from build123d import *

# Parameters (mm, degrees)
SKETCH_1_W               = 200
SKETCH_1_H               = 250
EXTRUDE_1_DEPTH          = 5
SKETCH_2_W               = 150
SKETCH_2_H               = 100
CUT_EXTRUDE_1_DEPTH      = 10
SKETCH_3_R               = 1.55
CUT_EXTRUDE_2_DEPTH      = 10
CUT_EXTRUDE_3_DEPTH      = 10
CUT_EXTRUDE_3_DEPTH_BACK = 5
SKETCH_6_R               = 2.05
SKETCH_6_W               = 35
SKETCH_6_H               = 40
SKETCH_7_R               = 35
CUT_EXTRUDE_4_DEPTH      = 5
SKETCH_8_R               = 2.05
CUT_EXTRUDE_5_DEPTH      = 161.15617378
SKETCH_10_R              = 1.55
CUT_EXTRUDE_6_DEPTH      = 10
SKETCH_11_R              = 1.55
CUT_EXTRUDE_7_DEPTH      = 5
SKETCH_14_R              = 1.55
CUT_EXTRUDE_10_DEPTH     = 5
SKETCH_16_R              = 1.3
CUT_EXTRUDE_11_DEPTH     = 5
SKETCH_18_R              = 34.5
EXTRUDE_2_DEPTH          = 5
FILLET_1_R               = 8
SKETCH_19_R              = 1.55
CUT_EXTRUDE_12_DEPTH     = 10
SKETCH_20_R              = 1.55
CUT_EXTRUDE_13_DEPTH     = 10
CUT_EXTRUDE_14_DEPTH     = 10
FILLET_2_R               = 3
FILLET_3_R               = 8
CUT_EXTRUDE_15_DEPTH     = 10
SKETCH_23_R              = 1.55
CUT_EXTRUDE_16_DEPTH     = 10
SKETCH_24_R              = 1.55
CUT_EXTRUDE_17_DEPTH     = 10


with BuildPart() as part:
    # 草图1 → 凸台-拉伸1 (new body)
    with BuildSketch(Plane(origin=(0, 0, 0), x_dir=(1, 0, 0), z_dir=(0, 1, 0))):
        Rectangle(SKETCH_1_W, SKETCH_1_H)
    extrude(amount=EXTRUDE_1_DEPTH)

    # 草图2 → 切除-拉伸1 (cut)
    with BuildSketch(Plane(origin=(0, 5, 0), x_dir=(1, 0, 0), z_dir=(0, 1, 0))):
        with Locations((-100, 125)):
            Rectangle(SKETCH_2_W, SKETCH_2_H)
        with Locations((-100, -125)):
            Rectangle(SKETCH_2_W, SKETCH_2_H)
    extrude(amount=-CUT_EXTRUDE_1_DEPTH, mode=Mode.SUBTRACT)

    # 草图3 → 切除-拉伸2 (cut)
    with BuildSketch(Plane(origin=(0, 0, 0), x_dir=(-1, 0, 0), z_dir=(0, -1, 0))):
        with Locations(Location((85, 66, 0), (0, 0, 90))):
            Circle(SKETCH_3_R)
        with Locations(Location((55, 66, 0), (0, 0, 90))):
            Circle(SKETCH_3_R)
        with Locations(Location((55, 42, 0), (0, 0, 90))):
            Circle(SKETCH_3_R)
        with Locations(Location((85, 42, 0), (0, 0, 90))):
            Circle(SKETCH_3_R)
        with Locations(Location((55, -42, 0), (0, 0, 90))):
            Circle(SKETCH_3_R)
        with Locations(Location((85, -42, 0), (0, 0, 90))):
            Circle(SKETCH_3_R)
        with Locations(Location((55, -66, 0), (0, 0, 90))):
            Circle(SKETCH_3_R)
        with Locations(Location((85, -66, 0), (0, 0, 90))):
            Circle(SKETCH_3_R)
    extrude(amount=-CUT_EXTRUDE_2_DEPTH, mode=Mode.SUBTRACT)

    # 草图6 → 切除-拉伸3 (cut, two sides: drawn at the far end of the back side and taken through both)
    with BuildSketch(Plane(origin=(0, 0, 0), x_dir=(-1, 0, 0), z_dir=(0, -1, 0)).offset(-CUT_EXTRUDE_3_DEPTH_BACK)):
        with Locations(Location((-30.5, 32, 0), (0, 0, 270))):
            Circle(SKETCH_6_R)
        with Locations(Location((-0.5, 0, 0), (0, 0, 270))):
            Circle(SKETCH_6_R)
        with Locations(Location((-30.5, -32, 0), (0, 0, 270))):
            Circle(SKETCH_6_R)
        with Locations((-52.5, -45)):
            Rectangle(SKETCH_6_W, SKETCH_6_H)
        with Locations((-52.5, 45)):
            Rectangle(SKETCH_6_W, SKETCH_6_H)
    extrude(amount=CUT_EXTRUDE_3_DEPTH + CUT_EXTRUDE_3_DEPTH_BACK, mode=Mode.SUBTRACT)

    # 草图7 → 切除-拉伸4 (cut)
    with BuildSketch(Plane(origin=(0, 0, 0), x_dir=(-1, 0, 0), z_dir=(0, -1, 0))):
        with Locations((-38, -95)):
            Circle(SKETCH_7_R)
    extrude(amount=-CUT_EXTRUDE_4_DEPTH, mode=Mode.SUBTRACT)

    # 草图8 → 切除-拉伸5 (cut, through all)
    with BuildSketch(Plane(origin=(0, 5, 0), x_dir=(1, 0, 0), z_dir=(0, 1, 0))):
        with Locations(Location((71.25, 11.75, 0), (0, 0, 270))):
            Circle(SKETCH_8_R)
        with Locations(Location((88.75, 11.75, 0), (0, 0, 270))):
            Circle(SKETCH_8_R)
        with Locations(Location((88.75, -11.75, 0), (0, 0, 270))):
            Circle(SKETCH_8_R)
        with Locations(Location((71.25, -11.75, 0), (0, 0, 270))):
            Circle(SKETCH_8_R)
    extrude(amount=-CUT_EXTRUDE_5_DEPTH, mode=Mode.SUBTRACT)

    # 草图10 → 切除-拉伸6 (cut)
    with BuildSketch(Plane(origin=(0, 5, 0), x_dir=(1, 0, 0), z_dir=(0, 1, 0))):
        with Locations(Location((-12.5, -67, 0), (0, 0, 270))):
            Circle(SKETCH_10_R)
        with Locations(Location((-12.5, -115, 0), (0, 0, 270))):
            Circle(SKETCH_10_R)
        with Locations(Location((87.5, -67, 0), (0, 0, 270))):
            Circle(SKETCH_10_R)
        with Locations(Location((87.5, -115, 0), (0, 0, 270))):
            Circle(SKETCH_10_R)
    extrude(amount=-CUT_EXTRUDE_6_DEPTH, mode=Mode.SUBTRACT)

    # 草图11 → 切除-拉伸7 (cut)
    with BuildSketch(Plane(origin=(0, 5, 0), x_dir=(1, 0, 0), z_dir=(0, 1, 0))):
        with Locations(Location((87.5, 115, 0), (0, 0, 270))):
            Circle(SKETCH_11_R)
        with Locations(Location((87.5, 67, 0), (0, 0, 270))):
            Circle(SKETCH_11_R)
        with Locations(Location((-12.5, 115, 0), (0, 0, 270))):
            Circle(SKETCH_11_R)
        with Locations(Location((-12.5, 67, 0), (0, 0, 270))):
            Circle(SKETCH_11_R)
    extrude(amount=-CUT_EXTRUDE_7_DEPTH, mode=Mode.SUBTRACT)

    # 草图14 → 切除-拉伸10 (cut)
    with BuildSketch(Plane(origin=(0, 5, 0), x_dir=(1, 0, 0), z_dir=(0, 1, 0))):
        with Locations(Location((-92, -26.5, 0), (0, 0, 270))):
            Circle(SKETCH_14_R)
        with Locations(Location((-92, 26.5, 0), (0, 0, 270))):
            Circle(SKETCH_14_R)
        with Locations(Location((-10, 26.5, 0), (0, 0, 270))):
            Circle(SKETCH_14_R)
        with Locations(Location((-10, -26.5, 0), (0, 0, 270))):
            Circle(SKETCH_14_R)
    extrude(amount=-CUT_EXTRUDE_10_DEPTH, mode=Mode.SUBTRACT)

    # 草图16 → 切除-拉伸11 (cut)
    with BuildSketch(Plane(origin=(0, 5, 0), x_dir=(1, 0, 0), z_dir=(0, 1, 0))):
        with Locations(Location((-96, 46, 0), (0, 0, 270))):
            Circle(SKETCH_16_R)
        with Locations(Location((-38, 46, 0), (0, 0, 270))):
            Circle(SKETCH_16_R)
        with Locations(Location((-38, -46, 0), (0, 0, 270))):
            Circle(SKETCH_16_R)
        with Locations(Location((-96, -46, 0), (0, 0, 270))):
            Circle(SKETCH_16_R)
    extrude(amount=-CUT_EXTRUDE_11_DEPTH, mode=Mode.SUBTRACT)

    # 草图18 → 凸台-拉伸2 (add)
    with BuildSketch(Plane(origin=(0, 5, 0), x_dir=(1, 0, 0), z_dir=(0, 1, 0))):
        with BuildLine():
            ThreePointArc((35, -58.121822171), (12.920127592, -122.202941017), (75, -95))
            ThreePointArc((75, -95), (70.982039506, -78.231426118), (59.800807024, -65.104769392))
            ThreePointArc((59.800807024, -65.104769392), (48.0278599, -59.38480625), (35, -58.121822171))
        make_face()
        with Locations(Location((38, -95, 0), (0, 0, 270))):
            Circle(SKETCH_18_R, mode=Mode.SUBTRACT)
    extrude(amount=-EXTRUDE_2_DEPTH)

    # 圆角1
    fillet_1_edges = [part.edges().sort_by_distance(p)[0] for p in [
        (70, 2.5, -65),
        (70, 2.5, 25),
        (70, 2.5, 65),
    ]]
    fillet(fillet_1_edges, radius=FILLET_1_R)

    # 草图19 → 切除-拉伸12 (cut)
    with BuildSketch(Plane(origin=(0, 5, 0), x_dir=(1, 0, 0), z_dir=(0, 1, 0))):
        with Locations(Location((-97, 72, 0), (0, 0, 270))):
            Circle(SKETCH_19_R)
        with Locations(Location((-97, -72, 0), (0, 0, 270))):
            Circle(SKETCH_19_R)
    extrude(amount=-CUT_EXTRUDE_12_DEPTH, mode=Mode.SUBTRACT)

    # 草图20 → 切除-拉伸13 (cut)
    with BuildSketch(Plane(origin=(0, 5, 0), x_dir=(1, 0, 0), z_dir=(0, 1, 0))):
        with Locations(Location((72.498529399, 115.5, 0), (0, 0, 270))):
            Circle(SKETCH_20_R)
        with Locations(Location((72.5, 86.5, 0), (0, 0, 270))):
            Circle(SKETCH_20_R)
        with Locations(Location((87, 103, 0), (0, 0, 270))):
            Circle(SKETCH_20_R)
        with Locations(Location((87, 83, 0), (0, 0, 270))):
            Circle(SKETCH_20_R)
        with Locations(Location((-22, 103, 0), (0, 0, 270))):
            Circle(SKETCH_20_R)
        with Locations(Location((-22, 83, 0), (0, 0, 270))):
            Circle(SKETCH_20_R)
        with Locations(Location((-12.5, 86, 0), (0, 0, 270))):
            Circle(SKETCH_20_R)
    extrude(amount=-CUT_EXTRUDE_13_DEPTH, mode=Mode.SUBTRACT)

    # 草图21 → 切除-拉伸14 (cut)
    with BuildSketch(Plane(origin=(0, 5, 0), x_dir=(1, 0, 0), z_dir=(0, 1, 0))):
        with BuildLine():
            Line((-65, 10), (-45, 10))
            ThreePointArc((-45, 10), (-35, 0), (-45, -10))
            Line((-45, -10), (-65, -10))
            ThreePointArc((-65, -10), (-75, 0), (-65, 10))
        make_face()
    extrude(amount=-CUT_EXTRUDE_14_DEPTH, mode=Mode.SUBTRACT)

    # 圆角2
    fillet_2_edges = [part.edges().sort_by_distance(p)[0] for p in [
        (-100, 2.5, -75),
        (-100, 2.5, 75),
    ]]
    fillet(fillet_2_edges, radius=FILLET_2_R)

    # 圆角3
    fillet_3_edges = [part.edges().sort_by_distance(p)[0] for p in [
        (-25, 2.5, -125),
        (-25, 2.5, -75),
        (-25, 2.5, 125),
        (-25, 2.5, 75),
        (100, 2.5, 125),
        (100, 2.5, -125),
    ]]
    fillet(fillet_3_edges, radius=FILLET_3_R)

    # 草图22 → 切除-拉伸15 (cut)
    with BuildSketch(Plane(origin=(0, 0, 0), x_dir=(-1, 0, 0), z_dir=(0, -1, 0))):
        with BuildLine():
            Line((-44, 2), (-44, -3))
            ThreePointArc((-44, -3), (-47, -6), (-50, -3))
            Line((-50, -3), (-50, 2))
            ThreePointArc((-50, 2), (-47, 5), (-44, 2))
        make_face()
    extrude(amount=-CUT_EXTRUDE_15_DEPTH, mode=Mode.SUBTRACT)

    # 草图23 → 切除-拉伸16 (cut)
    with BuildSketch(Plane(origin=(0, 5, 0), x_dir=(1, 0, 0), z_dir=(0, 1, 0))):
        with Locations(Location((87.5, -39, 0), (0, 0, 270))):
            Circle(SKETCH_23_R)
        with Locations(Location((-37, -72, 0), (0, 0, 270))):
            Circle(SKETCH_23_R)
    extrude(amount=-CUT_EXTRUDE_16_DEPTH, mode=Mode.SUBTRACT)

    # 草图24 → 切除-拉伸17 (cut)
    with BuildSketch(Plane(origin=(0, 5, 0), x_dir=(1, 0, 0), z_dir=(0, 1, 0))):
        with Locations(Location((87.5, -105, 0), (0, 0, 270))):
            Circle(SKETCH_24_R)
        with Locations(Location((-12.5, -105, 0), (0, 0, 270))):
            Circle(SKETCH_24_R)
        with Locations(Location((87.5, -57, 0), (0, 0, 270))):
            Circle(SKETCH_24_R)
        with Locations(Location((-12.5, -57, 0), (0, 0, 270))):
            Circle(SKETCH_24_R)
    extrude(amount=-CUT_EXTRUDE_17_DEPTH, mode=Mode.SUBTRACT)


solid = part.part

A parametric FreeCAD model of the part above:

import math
import FreeCAD as App
import Part
import Sketcher


def edges_at(feature, points):
    """Names of the edges that pass closest to the given points."""
    edges = feature.Shape.Edges
    near = lambda p: min(range(len(edges)), key=lambda i: edges[i].distToShape(Part.Vertex(*p))[0])
    return sorted({f"Edge{near(p) + 1}" for p in points})

doc = App.newDocument("Part")
params = doc.addObject("Spreadsheet::Sheet", "Params")
for row, (alias, value) in enumerate([
    ("sketch1_width", "200 mm"),
    ("sketch1_height", "250 mm"),
    ("pad1_length", "5 mm"),
    ("sketch2_width", "150 mm"),
    ("sketch2_height", "100 mm"),
    ("pocket1_length", "10 mm"),
    ("sketch3_diameter", "3.1 mm"),
    ("pocket2_length", "10 mm"),
    ("sketch4_diameter", "4.1 mm"),
    ("sketch4_width", "35 mm"),
    ("sketch4_height", "40 mm"),
    ("sketch5_diameter", "70 mm"),
    ("pocket4_length", "5 mm"),
    ("sketch6_diameter", "4.1 mm"),
    ("sketch7_diameter", "3.1 mm"),
    ("pocket6_length", "10 mm"),
    ("sketch8_diameter", "3.1 mm"),
    ("pocket7_length", "5 mm"),
    ("sketch9_diameter", "3.1 mm"),
    ("pocket8_length", "5 mm"),
    ("sketch10_diameter", "2.6 mm"),
    ("pocket9_length", "5 mm"),
    ("sketch11_diameter", "69 mm"),
    ("sketch11_radius", "37 mm"),
    ("pad2_length", "5 mm"),
    ("fillet_radius", "8 mm"),
    ("sketch12_diameter", "3.1 mm"),
    ("pocket10_length", "10 mm"),
    ("sketch13_diameter", "3.1 mm"),
    ("pocket11_length", "10 mm"),
    ("sketch14_radius", "10 mm"),
    ("sketch14_width", "20 mm"),
    ("pocket12_length", "10 mm"),
    ("fillet2_radius", "3 mm"),
    ("fillet3_radius", "8 mm"),
    ("sketch15_radius", "3 mm"),
    ("sketch15_height", "5 mm"),
    ("pocket13_length", "10 mm"),
    ("sketch16_diameter", "3.1 mm"),
    ("pocket14_length", "10 mm"),
    ("sketch17_diameter", "3.1 mm"),
    ("pocket15_length", "10 mm"),
], start=1):
    params.set(f"A{row}", alias)
    params.set(f"B{row}", "=" + value)
    params.setAlias(f"B{row}", alias)

body = doc.addObject("PartDesign::Body", "Body")

sketch1 = body.newObject("Sketcher::SketchObject", "Sketch")
sketch1.AttachmentSupport = (doc.getObject("XZ_Plane"), [""])
sketch1.MapMode = "FlatFace"
sketch1.addGeometry([
    Part.LineSegment(App.Vector(-100, -125, 0), App.Vector(-100, 125, 0)),
    Part.LineSegment(App.Vector(-100, 125, 0), App.Vector(100, 125, 0)),
    Part.LineSegment(App.Vector(100, 125, 0), App.Vector(100, -125, 0)),
    Part.LineSegment(App.Vector(100, -125, 0), App.Vector(-100, -125, 0)),
], False)
sketch1.addConstraint([
    Sketcher.Constraint("Coincident", 0, 2, 1, 1),
    Sketcher.Constraint("Coincident", 1, 2, 2, 1),
    Sketcher.Constraint("Coincident", 2, 2, 3, 1),
    Sketcher.Constraint("Coincident", 3, 2, 0, 1),
    Sketcher.Constraint("Vertical", 0),
    Sketcher.Constraint("Horizontal", 1),
    Sketcher.Constraint("Vertical", 2),
    Sketcher.Constraint("Horizontal", 3),
    Sketcher.Constraint("Symmetric", 0, 2, 2, 2, -1, 1),
    Sketcher.Constraint("DistanceX", 1, 1, 1, 2, 200.0),
    Sketcher.Constraint("DistanceY", 0, 1, 0, 2, 250.0),
])
sketch1.setExpression("Constraints[9]", "Params.sketch1_width")
sketch1.setExpression("Constraints[10]", "Params.sketch1_height")
pad1 = body.newObject("PartDesign::Pad", "Pad")
pad1.Profile = sketch1
pad1.setExpression("Length", "Params.pad1_length")
pad1.Reversed = True

sketch2 = body.newObject("Sketcher::SketchObject", "Sketch001")
sketch2.AttachmentSupport = (doc.getObject("XZ_Plane"), [""])
sketch2.MapMode = "FlatFace"
sketch2.AttachmentOffset = App.Placement(App.Vector(0, 0, -5), App.Rotation())
sketch2.addGeometry([
    Part.LineSegment(App.Vector(-175, -175, 0), App.Vector(-175, -75, 0)),
    Part.LineSegment(App.Vector(-175, -75, 0), App.Vector(-25, -75, 0)),
    Part.LineSegment(App.Vector(-25, -75, 0), App.Vector(-25, -175, 0)),
    Part.LineSegment(App.Vector(-25, -175, 0), App.Vector(-175, -175, 0)),
    Part.LineSegment(App.Vector(-175, 75, 0), App.Vector(-175, 175, 0)),
    Part.LineSegment(App.Vector(-175, 175, 0), App.Vector(-25, 175, 0)),
    Part.LineSegment(App.Vector(-25, 175, 0), App.Vector(-25, 75, 0)),
    Part.LineSegment(App.Vector(-25, 75, 0), App.Vector(-175, 75, 0)),
], False)
sketch2.addConstraint([
    Sketcher.Constraint("Coincident", 0, 2, 1, 1),
    Sketcher.Constraint("Coincident", 1, 2, 2, 1),
    Sketcher.Constraint("Coincident", 2, 2, 3, 1),
    Sketcher.Constraint("Coincident", 3, 2, 0, 1),
    Sketcher.Constraint("Coincident", 4, 2, 5, 1),
    Sketcher.Constraint("Coincident", 5, 2, 6, 1),
    Sketcher.Constraint("Coincident", 6, 2, 7, 1),
    Sketcher.Constraint("Coincident", 7, 2, 4, 1),
    Sketcher.Constraint("Vertical", 0),
    Sketcher.Constraint("Horizontal", 1),
    Sketcher.Constraint("Vertical", 2),
    Sketcher.Constraint("Horizontal", 3),
    Sketcher.Constraint("Vertical", 4),
    Sketcher.Constraint("Horizontal", 5),
    Sketcher.Constraint("Vertical", 6),
    Sketcher.Constraint("Horizontal", 7),
    Sketcher.Constraint("Symmetric", 3, 2, 4, 2, -1),
    Sketcher.Constraint("Symmetric", 1, 2, 6, 2, -1),
    Sketcher.Constraint("DistanceX", 1, 1, 1, 2, 150.0),
    Sketcher.Constraint("DistanceY", 0, 1, 0, 2, 100.0),
    Sketcher.Constraint("DistanceX", 0, 2, -1, 1, 175.0),
    Sketcher.Constraint("DistanceY", 0, 2, -1, 1, 75.0),
])
sketch2.setExpression("Constraints[18]", "Params.sketch2_width")
sketch2.setExpression("Constraints[19]", "Params.sketch2_height")
pocket1 = body.newObject("PartDesign::Pocket", "Pocket")
pocket1.Profile = sketch2
pocket1.setExpression("Length", "Params.pocket1_length")
pocket1.Reversed = True

sketch3 = body.newObject("Sketcher::SketchObject", "Sketch002")
sketch3.AttachmentSupport = (doc.getObject("XZ_Plane"), [""])
sketch3.MapMode = "FlatFace"
sketch3.addGeometry([
    Part.Circle(App.Vector(-85, -66, 0), App.Vector(0, 0, 1), 1.6),
    Part.Circle(App.Vector(-55, -66, 0), App.Vector(0, 0, 1), 1.6),
    Part.Circle(App.Vector(-55, -42, 0), App.Vector(0, 0, 1), 1.6),
    Part.Circle(App.Vector(-85, -42, 0), App.Vector(0, 0, 1), 1.6),
    Part.Circle(App.Vector(-55, 42, 0), App.Vector(0, 0, 1), 1.6),
    Part.Circle(App.Vector(-85, 42, 0), App.Vector(0, 0, 1), 1.6),
    Part.Circle(App.Vector(-55, 66, 0), App.Vector(0, 0, 1), 1.6),
    Part.Circle(App.Vector(-85, 66, 0), App.Vector(0, 0, 1), 1.6),
], False)
sketch3.addConstraint([
    Sketcher.Constraint("Equal", 0, 1),
    Sketcher.Constraint("Equal", 1, 2),
    Sketcher.Constraint("Equal", 2, 3),
    Sketcher.Constraint("Equal", 3, 4),
    Sketcher.Constraint("Equal", 4, 5),
    Sketcher.Constraint("Equal", 5, 6),
    Sketcher.Constraint("Equal", 6, 7),
    Sketcher.Constraint("Symmetric", 2, 3, 4, 3, -1),
    Sketcher.Constraint("Symmetric", 3, 3, 5, 3, -1),
    Sketcher.Constraint("Symmetric", 1, 3, 6, 3, -1),
    Sketcher.Constraint("Symmetric", 0, 3, 7, 3, -1),
    Sketcher.Constraint("Horizontal", 0, 3, 1, 3),
    Sketcher.Constraint("Horizontal", 2, 3, 3, 3),
    Sketcher.Constraint("Vertical", 1, 3, 2, 3),
    Sketcher.Constraint("Vertical", 0, 3, 3, 3),
    Sketcher.Constraint("Diameter", 0, 3.1),
    Sketcher.Constraint("DistanceX", 0, 3, -1, 1, 85.0),
    Sketcher.Constraint("DistanceY", 0, 3, -1, 1, 66.0),
    Sketcher.Constraint("DistanceX", 1, 3, -1, 1, 55.0),
    Sketcher.Constraint("DistanceY", 2, 3, -1, 1, 42.0),
])
sketch3.setExpression("Constraints[15]", "Params.sketch3_diameter")
pocket2 = body.newObject("PartDesign::Pocket", "Pocket001")
pocket2.Profile = sketch3
pocket2.setExpression("Length", "Params.pocket2_length")

sketch4 = body.newObject("Sketcher::SketchObject", "Sketch003")
sketch4.AttachmentSupport = (doc.getObject("XZ_Plane"), [""])
sketch4.MapMode = "FlatFace"
sketch4.addGeometry([
    Part.Circle(App.Vector(30.5, -32, 0), App.Vector(0, 0, 1), 2),
    Part.Circle(App.Vector(0.5, 0, 0), App.Vector(0, 0, 1), 2),
    Part.Circle(App.Vector(30.5, 32, 0), App.Vector(0, 0, 1), 2),
    Part.LineSegment(App.Vector(70, 25, 0), App.Vector(70, 65, 0)),
    Part.LineSegment(App.Vector(70, 65, 0), App.Vector(35, 65, 0)),
    Part.LineSegment(App.Vector(35, 65, 0), App.Vector(35, 25, 0)),
    Part.LineSegment(App.Vector(35, 25, 0), App.Vector(70, 25, 0)),
    Part.LineSegment(App.Vector(70, -65, 0), App.Vector(70, -25, 0)),
    Part.LineSegment(App.Vector(70, -25, 0), App.Vector(35, -25, 0)),
    Part.LineSegment(App.Vector(35, -25, 0), App.Vector(35, -65, 0)),
    Part.LineSegment(App.Vector(35, -65, 0), App.Vector(70, -65, 0)),
], False)
sketch4.addConstraint([
    Sketcher.Constraint("Coincident", 3, 2, 4, 1),
    Sketcher.Constraint("Coincident", 4, 2, 5, 1),
    Sketcher.Constraint("Coincident", 5, 2, 6, 1),
    Sketcher.Constraint("Coincident", 6, 2, 3, 1),
    Sketcher.Constraint("Coincident", 7, 2, 8, 1),
    Sketcher.Constraint("Coincident", 8, 2, 9, 1),
    Sketcher.Constraint("Coincident", 9, 2, 10, 1),
    Sketcher.Constraint("Coincident", 10, 2, 7, 1),
    Sketcher.Constraint("Vertical", 3),
    Sketcher.Constraint("Horizontal", 4),
    Sketcher.Constraint("Vertical", 5),
    Sketcher.Constraint("Horizontal", 6),
    Sketcher.Constraint("Vertical", 7),
    Sketcher.Constraint("Horizontal", 8),
    Sketcher.Constraint("Vertical", 9),
    Sketcher.Constraint("Horizontal", 10),
    Sketcher.Constraint("Equal", 0, 1),
    Sketcher.Constraint("Equal", 1, 2),
    Sketcher.Constraint("Symmetric", 0, 3, 2, 3, -1),
    Sketcher.Constraint("Symmetric", 6, 2, 7, 2, -1),
    Sketcher.Constraint("Symmetric", 4, 2, 9, 2, -1),
    Sketcher.Constraint("PointOnObject", 1, 3, -1),
    Sketcher.Constraint("Diameter", 0, 4.1),
    Sketcher.Constraint("DistanceX", 4, 2, 4, 1, 35.0),
    Sketcher.Constraint("DistanceY", 3, 1, 3, 2, 40.0),
    Sketcher.Constraint("DistanceY", 0, 3, -1, 1, 32.0),
    Sketcher.Constraint("DistanceX", -1, 1, 3, 2, 70.0),
    Sketcher.Constraint("DistanceY", -1, 1, 3, 2, 65.0),
    Sketcher.Constraint("DistanceX", 1, 3, 0, 3, 30.0),
    Sketcher.Constraint("DistanceX", -1, 1, 0, 3, 30.5),
])
sketch4.setExpression("Constraints[22]", "Params.sketch4_diameter")
sketch4.setExpression("Constraints[23]", "Params.sketch4_width")
sketch4.setExpression("Constraints[24]", "Params.sketch4_height")
pocket3 = body.newObject("PartDesign::Pocket", "Pocket002")
pocket3.Profile = sketch4
pocket3.Type = "ThroughAll"
pocket3.Midplane = True

sketch5 = body.newObject("Sketcher::SketchObject", "Sketch004")
sketch5.AttachmentSupport = (doc.getObject("XZ_Plane"), [""])
sketch5.MapMode = "FlatFace"
sketch5.addGeometry(Part.Circle(App.Vector(38, 95, 0), App.Vector(0, 0, 1), 35), False)
sketch5.addConstraint([
    Sketcher.Constraint("Diameter", 0, 70.0),
    Sketcher.Constraint("DistanceX", -1, 1, 0, 3, 38.0),
    Sketcher.Constraint("DistanceY", -1, 1, 0, 3, 95.0),
])
sketch5.setExpression("Constraints[0]", "Params.sketch5_diameter")
pocket4 = body.newObject("PartDesign::Pocket", "Pocket003")
pocket4.Profile = sketch5
pocket4.setExpression("Length", "Params.pocket4_length")

sketch6 = body.newObject("Sketcher::SketchObject", "Sketch005")
sketch6.AttachmentSupport = (doc.getObject("XZ_Plane"), [""])
sketch6.MapMode = "FlatFace"
sketch6.AttachmentOffset = App.Placement(App.Vector(0, 0, -5), App.Rotation())
sketch6.addGeometry([
    Part.Circle(App.Vector(71.2, -11.8, 0), App.Vector(0, 0, 1), 2),
    Part.Circle(App.Vector(88.8, -11.8, 0), App.Vector(0, 0, 1), 2),
    Part.Circle(App.Vector(88.8, 11.8, 0), App.Vector(0, 0, 1), 2),
    Part.Circle(App.Vector(71.2, 11.8, 0), App.Vector(0, 0, 1), 2),
], False)
sketch6.addConstraint([
    Sketcher.Constraint("Equal", 0, 1),
    Sketcher.Constraint("Equal", 1, 2),
    Sketcher.Constraint("Equal", 2, 3),
    Sketcher.Constraint("Symmetric", 1, 3, 2, 3, -1),
    Sketcher.Constraint("Symmetric", 0, 3, 3, 3, -1),
    Sketcher.Constraint("Horizontal", 0, 3, 1, 3),
    Sketcher.Constraint("Diameter", 0, 4.1),
    Sketcher.Constraint("DistanceX", 0, 3, 1, 3, 17.5),
    Sketcher.Constraint("DistanceY", 1, 3, 2, 3, 23.5),
    Sketcher.Constraint("DistanceX", -1, 1, 0, 3, 71.25),
])
sketch6.setExpression("Constraints[6]", "Params.sketch6_diameter")
pocket5 = body.newObject("PartDesign::Pocket", "Pocket004")
pocket5.Profile = sketch6
pocket5.Type = "ThroughAll"
pocket5.Reversed = True

sketch7 = body.newObject("Sketcher::SketchObject", "Sketch006")
sketch7.AttachmentSupport = (doc.getObject("XZ_Plane"), [""])
sketch7.MapMode = "FlatFace"
sketch7.AttachmentOffset = App.Placement(App.Vector(0, 0, -5), App.Rotation())
sketch7.addGeometry([
    Part.Circle(App.Vector(-12.5, 67, 0), App.Vector(0, 0, 1), 1.6),
    Part.Circle(App.Vector(-12.5, 115, 0), App.Vector(0, 0, 1), 1.6),
    Part.Circle(App.Vector(87.5, 67, 0), App.Vector(0, 0, 1), 1.6),
    Part.Circle(App.Vector(87.5, 115, 0), App.Vector(0, 0, 1), 1.6),
], False)
sketch7.addConstraint([
    Sketcher.Constraint("Equal", 0, 1),
    Sketcher.Constraint("Equal", 1, 2),
    Sketcher.Constraint("Equal", 2, 3),
    Sketcher.Constraint("Horizontal", 0, 3, 2, 3),
    Sketcher.Constraint("Horizontal", 1, 3, 3, 3),
    Sketcher.Constraint("Vertical", 0, 3, 1, 3),
    Sketcher.Constraint("Vertical", 2, 3, 3, 3),
    Sketcher.Constraint("Diameter", 0, 3.1),
    Sketcher.Constraint("DistanceY", -1, 1, 0, 3, 67.0),
    Sketcher.Constraint("DistanceY", -1, 1, 1, 3, 115.0),
    Sketcher.Constraint("DistanceX", 0, 3, 2, 3, 100.0),
    Sketcher.Constraint("DistanceX", 0, 3, -1, 1, 12.5),
])
sketch7.setExpression("Constraints[7]", "Params.sketch7_diameter")
pocket6 = body.newObject("PartDesign::Pocket", "Pocket005")
pocket6.Profile = sketch7
pocket6.setExpression("Length", "Params.pocket6_length")
pocket6.Reversed = True

sketch8 = body.newObject("Sketcher::SketchObject", "Sketch007")
sketch8.AttachmentSupport = (doc.getObject("XZ_Plane"), [""])
sketch8.MapMode = "FlatFace"
sketch8.AttachmentOffset = App.Placement(App.Vector(0, 0, -5), App.Rotation())
sketch8.addGeometry([
    Part.Circle(App.Vector(87.5, -115, 0), App.Vector(0, 0, 1), 1.6),
    Part.Circle(App.Vector(87.5, -67, 0), App.Vector(0, 0, 1), 1.6),
    Part.Circle(App.Vector(-12.5, -115, 0), App.Vector(0, 0, 1), 1.6),
    Part.Circle(App.Vector(-12.5, -67, 0), App.Vector(0, 0, 1), 1.6),
], False)
sketch8.addConstraint([
    Sketcher.Constraint("Equal", 0, 1),
    Sketcher.Constraint("Equal", 1, 2),
    Sketcher.Constraint("Equal", 2, 3),
    Sketcher.Constraint("Horizontal", 0, 3, 2, 3),
    Sketcher.Constraint("Horizontal", 1, 3, 3, 3),
    Sketcher.Constraint("Vertical", 0, 3, 1, 3),
    Sketcher.Constraint("Vertical", 2, 3, 3, 3),
    Sketcher.Constraint("Diameter", 0, 3.1),
    Sketcher.Constraint("DistanceY", 0, 3, -1, 1, 115.0),
    Sketcher.Constraint("DistanceY", 1, 3, -1, 1, 67.0),
    Sketcher.Constraint("DistanceX", 2, 3, 0, 3, 100.0),
    Sketcher.Constraint("DistanceX", -1, 1, 0, 3, 87.5),
])
sketch8.setExpression("Constraints[7]", "Params.sketch8_diameter")
pocket7 = body.newObject("PartDesign::Pocket", "Pocket006")
pocket7.Profile = sketch8
pocket7.setExpression("Length", "Params.pocket7_length")
pocket7.Reversed = True

sketch9 = body.newObject("Sketcher::SketchObject", "Sketch008")
sketch9.AttachmentSupport = (doc.getObject("XZ_Plane"), [""])
sketch9.MapMode = "FlatFace"
sketch9.AttachmentOffset = App.Placement(App.Vector(0, 0, -5), App.Rotation())
sketch9.addGeometry([
    Part.Circle(App.Vector(-92, 26.5, 0), App.Vector(0, 0, 1), 1.6),
    Part.Circle(App.Vector(-92, -26.5, 0), App.Vector(0, 0, 1), 1.6),
    Part.Circle(App.Vector(-10, -26.5, 0), App.Vector(0, 0, 1), 1.6),
    Part.Circle(App.Vector(-10, 26.5, 0), App.Vector(0, 0, 1), 1.6),
], False)
sketch9.addConstraint([
    Sketcher.Constraint("Equal", 0, 1),
    Sketcher.Constraint("Equal", 1, 2),
    Sketcher.Constraint("Equal", 2, 3),
    Sketcher.Constraint("Symmetric", 0, 3, 1, 3, -1),
    Sketcher.Constraint("Symmetric", 2, 3, 3, 3, -1),
    Sketcher.Constraint("Horizontal", 1, 3, 2, 3),
    Sketcher.Constraint("Diameter", 0, 3.1),
    Sketcher.Constraint("DistanceX", 0, 3, -1, 1, 92.0),
    Sketcher.Constraint("DistanceX", 2, 3, -1, 1, 10.0),
    Sketcher.Constraint("DistanceY", 1, 3, 0, 3, 53.0),
])
sketch9.setExpression("Constraints[6]", "Params.sketch9_diameter")
pocket8 = body.newObject("PartDesign::Pocket", "Pocket007")
pocket8.Profile = sketch9
pocket8.setExpression("Length", "Params.pocket8_length")
pocket8.Reversed = True

sketch10 = body.newObject("Sketcher::SketchObject", "Sketch009")
sketch10.AttachmentSupport = (doc.getObject("XZ_Plane"), [""])
sketch10.MapMode = "FlatFace"
sketch10.AttachmentOffset = App.Placement(App.Vector(0, 0, -5), App.Rotation())
sketch10.addGeometry([
    Part.Circle(App.Vector(-96, -46, 0), App.Vector(0, 0, 1), 1.3),
    Part.Circle(App.Vector(-38, -46, 0), App.Vector(0, 0, 1), 1.3),
    Part.Circle(App.Vector(-38, 46, 0), App.Vector(0, 0, 1), 1.3),
    Part.Circle(App.Vector(-96, 46, 0), App.Vector(0, 0, 1), 1.3),
], False)
sketch10.addConstraint([
    Sketcher.Constraint("Equal", 0, 1),
    Sketcher.Constraint("Equal", 1, 2),
    Sketcher.Constraint("Equal", 2, 3),
    Sketcher.Constraint("Symmetric", 1, 3, 2, 3, -1),
    Sketcher.Constraint("Symmetric", 0, 3, 3, 3, -1),
    Sketcher.Constraint("Horizontal", 0, 3, 1, 3),
    Sketcher.Constraint("Diameter", 0, 2.6),
    Sketcher.Constraint("DistanceX", 0, 3, -1, 1, 96.0),
    Sketcher.Constraint("DistanceY", 0, 3, -1, 1, 46.0),
    Sketcher.Constraint("DistanceX", 1, 3, -1, 1, 38.0),
])
sketch10.setExpression("Constraints[6]", "Params.sketch10_diameter")
pocket9 = body.newObject("PartDesign::Pocket", "Pocket008")
pocket9.Profile = sketch10
pocket9.setExpression("Length", "Params.pocket9_length")
pocket9.Reversed = True

sketch11 = body.newObject("Sketcher::SketchObject", "Sketch010")
sketch11.AttachmentSupport = (doc.getObject("XZ_Plane"), [""])
sketch11.MapMode = "FlatFace"
sketch11.AttachmentOffset = App.Placement(App.Vector(0, 0, -5), App.Rotation())
sketch11.addGeometry([
    Part.ArcOfCircle(Part.Circle(App.Vector(38, 95, 0), App.Vector(0, 0, 1), 37), math.radians(0), math.radians(265)),
    Part.ArcOfCircle(Part.Circle(App.Vector(38, 95, 0), App.Vector(0, 0, 1), 37), math.radians(-54), math.radians(0)),
    Part.ArcOfCircle(Part.Circle(App.Vector(38, 95, 0), App.Vector(0, 0, 1), 37), math.radians(-95), math.radians(-54)),
    Part.Circle(App.Vector(38, 95, 0), App.Vector(0, 0, 1), 34),
], False)
sketch11.addConstraint([
    Sketcher.Constraint("Tangent", 0, 1, 1, 2),
    Sketcher.Constraint("Tangent", 1, 1, 2, 2),
    Sketcher.Constraint("Tangent", 2, 1, 0, 2),
    Sketcher.Constraint("Coincident", 3, 3, 0, 3),
    Sketcher.Constraint("Horizontal", 3, 3, 0, 1),
    Sketcher.Constraint("Diameter", 3, 69.0),
    Sketcher.Constraint("Radius", 0, 37.0),
    Sketcher.Constraint("DistanceX", -1, 1, 0, 3, 38.0),
    Sketcher.Constraint("DistanceY", -1, 1, 0, 3, 95.0),
    Sketcher.Constraint("DistanceX", -1, 1, 2, 1, 35.0),
    Sketcher.Constraint("DistanceY", -1, 1, 1, 1, 65.104769),
])
sketch11.setExpression("Constraints[5]", "Params.sketch11_diameter")
sketch11.setExpression("Constraints[6]", "Params.sketch11_radius")
pad2 = body.newObject("PartDesign::Pad", "Pad001")
pad2.Profile = sketch11
pad2.setExpression("Length", "Params.pad2_length")
doc.recompute()

fillet = body.newObject("PartDesign::Fillet", "Fillet")
fillet.Base = (pad2, edges_at(pad2, [(70, 2.5, -65), (70, 2.5, 25), (70, 2.5, 65)]))
fillet.setExpression("Radius", "Params.fillet_radius")

sketch12 = body.newObject("Sketcher::SketchObject", "Sketch011")
sketch12.AttachmentSupport = (doc.getObject("XZ_Plane"), [""])
sketch12.MapMode = "FlatFace"
sketch12.AttachmentOffset = App.Placement(App.Vector(0, 0, -5), App.Rotation())
sketch12.addGeometry([
    Part.Circle(App.Vector(-97, -72, 0), App.Vector(0, 0, 1), 1.6),
    Part.Circle(App.Vector(-97, 72, 0), App.Vector(0, 0, 1), 1.6),
], False)
sketch12.addConstraint([
    Sketcher.Constraint("Equal", 0, 1),
    Sketcher.Constraint("Symmetric", 0, 3, 1, 3, -1),
    Sketcher.Constraint("Diameter", 0, 3.1),
    Sketcher.Constraint("DistanceX", 0, 3, -1, 1, 97.0),
    Sketcher.Constraint("DistanceY", 0, 3, -1, 1, 72.0),
])
sketch12.setExpression("Constraints[2]", "Params.sketch12_diameter")
pocket10 = body.newObject("PartDesign::Pocket", "Pocket009")
pocket10.Profile = sketch12
pocket10.setExpression("Length", "Params.pocket10_length")
pocket10.Reversed = True

sketch13 = body.newObject("Sketcher::SketchObject", "Sketch012")
sketch13.AttachmentSupport = (doc.getObject("XZ_Plane"), [""])
sketch13.MapMode = "FlatFace"
sketch13.AttachmentOffset = App.Placement(App.Vector(0, 0, -5), App.Rotation())
sketch13.addGeometry([
    Part.Circle(App.Vector(72.5, -115.5, 0), App.Vector(0, 0, 1), 1.6),
    Part.Circle(App.Vector(72.5, -86.5, 0), App.Vector(0, 0, 1), 1.6),
    Part.Circle(App.Vector(87, -103, 0), App.Vector(0, 0, 1), 1.6),
    Part.Circle(App.Vector(87, -83, 0), App.Vector(0, 0, 1), 1.6),
    Part.Circle(App.Vector(-22, -103, 0), App.Vector(0, 0, 1), 1.6),
    Part.Circle(App.Vector(-22, -83, 0), App.Vector(0, 0, 1), 1.6),
    Part.Circle(App.Vector(-12.5, -86, 0), App.Vector(0, 0, 1), 1.6),
], False)
sketch13.addConstraint([
    Sketcher.Constraint("Equal", 0, 1),
    Sketcher.Constraint("Equal", 1, 2),
    Sketcher.Constraint("Equal", 2, 3),
    Sketcher.Constraint("Equal", 3, 4),
    Sketcher.Constraint("Equal", 4, 5),
    Sketcher.Constraint("Equal", 5, 6),
    Sketcher.Constraint("Horizontal", 2, 3, 4, 3),
    Sketcher.Constraint("Horizontal", 3, 3, 5, 3),
    Sketcher.Constraint("Vertical", 2, 3, 3, 3),
    Sketcher.Constraint("Vertical", 4, 3, 5, 3),
    Sketcher.Constraint("Diameter", 0, 3.1),
    Sketcher.Constraint("DistanceX", -1, 1, 2, 3, 87.0),
    Sketcher.Constraint("DistanceY", 2, 3, -1, 1, 103.0),
    Sketcher.Constraint("DistanceY", 3, 3, -1, 1, 83.0),
    Sketcher.Constraint("DistanceX", 4, 3, -1, 1, 22.0),
    Sketcher.Constraint("DistanceY", 6, 3, -1, 1, 86.0),
    Sketcher.Constraint("DistanceY", 0, 3, 1, 3, 29.0),
    Sketcher.Constraint("DistanceX", 6, 3, 1, 3, 85.0),
    Sketcher.Constraint("DistanceY", 0, 3, -1, 1, 115.5),
    Sketcher.Constraint("DistanceX", -1, 1, 1, 3, 72.5),
    Sketcher.Constraint("DistanceX", -1, 1, 0, 3, 72.498529),
])
sketch13.setExpression("Constraints[10]", "Params.sketch13_diameter")
pocket11 = body.newObject("PartDesign::Pocket", "Pocket010")
pocket11.Profile = sketch13
pocket11.setExpression("Length", "Params.pocket11_length")
pocket11.Reversed = True

sketch14 = body.newObject("Sketcher::SketchObject", "Sketch013")
sketch14.AttachmentSupport = (doc.getObject("XZ_Plane"), [""])
sketch14.MapMode = "FlatFace"
sketch14.AttachmentOffset = App.Placement(App.Vector(0, 0, -5), App.Rotation())
sketch14.addGeometry([
    Part.LineSegment(App.Vector(-45, -10, 0), App.Vector(-65, -10, 0)),
    Part.ArcOfCircle(Part.Circle(App.Vector(-65, 0, 0), App.Vector(0, 0, 1), 10), math.radians(90), math.radians(270)),
    Part.LineSegment(App.Vector(-65, 10, 0), App.Vector(-45, 10, 0)),
    Part.ArcOfCircle(Part.Circle(App.Vector(-45, 0, 0), App.Vector(0, 0, 1), 10), math.radians(-90), math.radians(90)),
], False)
sketch14.addConstraint([
    Sketcher.Constraint("Tangent", 0, 2, 1, 2),
    Sketcher.Constraint("Tangent", 1, 1, 2, 1),
    Sketcher.Constraint("Tangent", 2, 2, 3, 2),
    Sketcher.Constraint("Tangent", 3, 1, 0, 1),
    Sketcher.Constraint("Horizontal", 0),
    Sketcher.Constraint("Horizontal", 2),
    Sketcher.Constraint("PointOnObject", 1, 3, -1),
    Sketcher.Constraint("Radius", 1, 10.0),
    Sketcher.Constraint("DistanceX", 0, 2, 0, 1, 20.0),
    Sketcher.Constraint("DistanceX", 1, 3, -1, 1, 65.0),
])
sketch14.setExpression("Constraints[7]", "Params.sketch14_radius")
sketch14.setExpression("Constraints[8]", "Params.sketch14_width")
pocket12 = body.newObject("PartDesign::Pocket", "Pocket011")
pocket12.Profile = sketch14
pocket12.setExpression("Length", "Params.pocket12_length")
pocket12.Reversed = True
doc.recompute()

fillet2 = body.newObject("PartDesign::Fillet", "Fillet001")
fillet2.Base = (pocket12, edges_at(pocket12, [(-100, 2.5, -75), (-100, 2.5, 75)]))
fillet2.setExpression("Radius", "Params.fillet2_radius")
doc.recompute()

fillet3 = body.newObject("PartDesign::Fillet", "Fillet002")
fillet3.Base = (fillet2, edges_at(fillet2, [
    (-25, 2.5, -125),
    (-25, 2.5, -75),
    (-25, 2.5, 125),
    (-25, 2.5, 75),
    (100, 2.5, 125),
    (100, 2.5, -125),
]))
fillet3.setExpression("Radius", "Params.fillet3_radius")

sketch15 = body.newObject("Sketcher::SketchObject", "Sketch014")
sketch15.AttachmentSupport = (doc.getObject("XZ_Plane"), [""])
sketch15.MapMode = "FlatFace"
sketch15.addGeometry([
    Part.LineSegment(App.Vector(44, 3, 0), App.Vector(44, -2, 0)),
    Part.ArcOfCircle(Part.Circle(App.Vector(47, -2, 0), App.Vector(0, 0, 1), 3), math.radians(180), math.radians(360)),
    Part.LineSegment(App.Vector(50, -2, 0), App.Vector(50, 3, 0)),
    Part.ArcOfCircle(Part.Circle(App.Vector(47, 3, 0), App.Vector(0, 0, 1), 3), math.radians(0), math.radians(180)),
], False)
sketch15.addConstraint([
    Sketcher.Constraint("Tangent", 0, 2, 1, 1),
    Sketcher.Constraint("Tangent", 1, 2, 2, 1),
    Sketcher.Constraint("Tangent", 2, 2, 3, 1),
    Sketcher.Constraint("Tangent", 3, 2, 0, 1),
    Sketcher.Constraint("Vertical", 0),
    Sketcher.Constraint("Vertical", 2),
    Sketcher.Constraint("Radius", 1, 3.0),
    Sketcher.Constraint("DistanceY", 0, 2, 0, 1, 5.0),
    Sketcher.Constraint("DistanceX", -1, 1, 1, 3, 47.0),
    Sketcher.Constraint("DistanceY", 1, 3, -1, 1, 2.0),
])
sketch15.setExpression("Constraints[6]", "Params.sketch15_radius")
sketch15.setExpression("Constraints[7]", "Params.sketch15_height")
pocket13 = body.newObject("PartDesign::Pocket", "Pocket012")
pocket13.Profile = sketch15
pocket13.setExpression("Length", "Params.pocket13_length")

sketch16 = body.newObject("Sketcher::SketchObject", "Sketch015")
sketch16.AttachmentSupport = (doc.getObject("XZ_Plane"), [""])
sketch16.MapMode = "FlatFace"
sketch16.AttachmentOffset = App.Placement(App.Vector(0, 0, -5), App.Rotation())
sketch16.addGeometry([
    Part.Circle(App.Vector(87.5, 39, 0), App.Vector(0, 0, 1), 1.6),
    Part.Circle(App.Vector(-37, 72, 0), App.Vector(0, 0, 1), 1.6),
], False)
sketch16.addConstraint([
    Sketcher.Constraint("Equal", 0, 1),
    Sketcher.Constraint("Diameter", 0, 3.1),
    Sketcher.Constraint("DistanceY", -1, 1, 0, 3, 39.0),
    Sketcher.Constraint("DistanceX", 1, 3, -1, 1, 37.0),
    Sketcher.Constraint("DistanceY", -1, 1, 1, 3, 72.0),
    Sketcher.Constraint("DistanceX", -1, 1, 0, 3, 87.5),
])
sketch16.setExpression("Constraints[1]", "Params.sketch16_diameter")
pocket14 = body.newObject("PartDesign::Pocket", "Pocket013")
pocket14.Profile = sketch16
pocket14.setExpression("Length", "Params.pocket14_length")
pocket14.Reversed = True

sketch17 = body.newObject("Sketcher::SketchObject", "Sketch016")
sketch17.AttachmentSupport = (doc.getObject("XZ_Plane"), [""])
sketch17.MapMode = "FlatFace"
sketch17.AttachmentOffset = App.Placement(App.Vector(0, 0, -5), App.Rotation())
sketch17.addGeometry([
    Part.Circle(App.Vector(87.5, 105, 0), App.Vector(0, 0, 1), 1.6),
    Part.Circle(App.Vector(-12.5, 105, 0), App.Vector(0, 0, 1), 1.6),
    Part.Circle(App.Vector(87.5, 57, 0), App.Vector(0, 0, 1), 1.6),
    Part.Circle(App.Vector(-12.5, 57, 0), App.Vector(0, 0, 1), 1.6),
], False)
sketch17.addConstraint([
    Sketcher.Constraint("Equal", 0, 1),
    Sketcher.Constraint("Equal", 1, 2),
    Sketcher.Constraint("Equal", 2, 3),
    Sketcher.Constraint("Horizontal", 0, 3, 1, 3),
    Sketcher.Constraint("Horizontal", 2, 3, 3, 3),
    Sketcher.Constraint("Vertical", 0, 3, 2, 3),
    Sketcher.Constraint("Vertical", 1, 3, 3, 3),
    Sketcher.Constraint("Diameter", 0, 3.1),
    Sketcher.Constraint("DistanceY", -1, 1, 0, 3, 105.0),
    Sketcher.Constraint("DistanceY", -1, 1, 2, 3, 57.0),
    Sketcher.Constraint("DistanceX", 1, 3, 0, 3, 100.0),
    Sketcher.Constraint("DistanceX", -1, 1, 0, 3, 87.5),
])
sketch17.setExpression("Constraints[7]", "Params.sketch17_diameter")
pocket15 = body.newObject("PartDesign::Pocket", "Pocket014")
pocket15.Profile = sketch17
pocket15.setExpression("Length", "Params.pocket15_length")
pocket15.Reversed = True

doc.recompute()
